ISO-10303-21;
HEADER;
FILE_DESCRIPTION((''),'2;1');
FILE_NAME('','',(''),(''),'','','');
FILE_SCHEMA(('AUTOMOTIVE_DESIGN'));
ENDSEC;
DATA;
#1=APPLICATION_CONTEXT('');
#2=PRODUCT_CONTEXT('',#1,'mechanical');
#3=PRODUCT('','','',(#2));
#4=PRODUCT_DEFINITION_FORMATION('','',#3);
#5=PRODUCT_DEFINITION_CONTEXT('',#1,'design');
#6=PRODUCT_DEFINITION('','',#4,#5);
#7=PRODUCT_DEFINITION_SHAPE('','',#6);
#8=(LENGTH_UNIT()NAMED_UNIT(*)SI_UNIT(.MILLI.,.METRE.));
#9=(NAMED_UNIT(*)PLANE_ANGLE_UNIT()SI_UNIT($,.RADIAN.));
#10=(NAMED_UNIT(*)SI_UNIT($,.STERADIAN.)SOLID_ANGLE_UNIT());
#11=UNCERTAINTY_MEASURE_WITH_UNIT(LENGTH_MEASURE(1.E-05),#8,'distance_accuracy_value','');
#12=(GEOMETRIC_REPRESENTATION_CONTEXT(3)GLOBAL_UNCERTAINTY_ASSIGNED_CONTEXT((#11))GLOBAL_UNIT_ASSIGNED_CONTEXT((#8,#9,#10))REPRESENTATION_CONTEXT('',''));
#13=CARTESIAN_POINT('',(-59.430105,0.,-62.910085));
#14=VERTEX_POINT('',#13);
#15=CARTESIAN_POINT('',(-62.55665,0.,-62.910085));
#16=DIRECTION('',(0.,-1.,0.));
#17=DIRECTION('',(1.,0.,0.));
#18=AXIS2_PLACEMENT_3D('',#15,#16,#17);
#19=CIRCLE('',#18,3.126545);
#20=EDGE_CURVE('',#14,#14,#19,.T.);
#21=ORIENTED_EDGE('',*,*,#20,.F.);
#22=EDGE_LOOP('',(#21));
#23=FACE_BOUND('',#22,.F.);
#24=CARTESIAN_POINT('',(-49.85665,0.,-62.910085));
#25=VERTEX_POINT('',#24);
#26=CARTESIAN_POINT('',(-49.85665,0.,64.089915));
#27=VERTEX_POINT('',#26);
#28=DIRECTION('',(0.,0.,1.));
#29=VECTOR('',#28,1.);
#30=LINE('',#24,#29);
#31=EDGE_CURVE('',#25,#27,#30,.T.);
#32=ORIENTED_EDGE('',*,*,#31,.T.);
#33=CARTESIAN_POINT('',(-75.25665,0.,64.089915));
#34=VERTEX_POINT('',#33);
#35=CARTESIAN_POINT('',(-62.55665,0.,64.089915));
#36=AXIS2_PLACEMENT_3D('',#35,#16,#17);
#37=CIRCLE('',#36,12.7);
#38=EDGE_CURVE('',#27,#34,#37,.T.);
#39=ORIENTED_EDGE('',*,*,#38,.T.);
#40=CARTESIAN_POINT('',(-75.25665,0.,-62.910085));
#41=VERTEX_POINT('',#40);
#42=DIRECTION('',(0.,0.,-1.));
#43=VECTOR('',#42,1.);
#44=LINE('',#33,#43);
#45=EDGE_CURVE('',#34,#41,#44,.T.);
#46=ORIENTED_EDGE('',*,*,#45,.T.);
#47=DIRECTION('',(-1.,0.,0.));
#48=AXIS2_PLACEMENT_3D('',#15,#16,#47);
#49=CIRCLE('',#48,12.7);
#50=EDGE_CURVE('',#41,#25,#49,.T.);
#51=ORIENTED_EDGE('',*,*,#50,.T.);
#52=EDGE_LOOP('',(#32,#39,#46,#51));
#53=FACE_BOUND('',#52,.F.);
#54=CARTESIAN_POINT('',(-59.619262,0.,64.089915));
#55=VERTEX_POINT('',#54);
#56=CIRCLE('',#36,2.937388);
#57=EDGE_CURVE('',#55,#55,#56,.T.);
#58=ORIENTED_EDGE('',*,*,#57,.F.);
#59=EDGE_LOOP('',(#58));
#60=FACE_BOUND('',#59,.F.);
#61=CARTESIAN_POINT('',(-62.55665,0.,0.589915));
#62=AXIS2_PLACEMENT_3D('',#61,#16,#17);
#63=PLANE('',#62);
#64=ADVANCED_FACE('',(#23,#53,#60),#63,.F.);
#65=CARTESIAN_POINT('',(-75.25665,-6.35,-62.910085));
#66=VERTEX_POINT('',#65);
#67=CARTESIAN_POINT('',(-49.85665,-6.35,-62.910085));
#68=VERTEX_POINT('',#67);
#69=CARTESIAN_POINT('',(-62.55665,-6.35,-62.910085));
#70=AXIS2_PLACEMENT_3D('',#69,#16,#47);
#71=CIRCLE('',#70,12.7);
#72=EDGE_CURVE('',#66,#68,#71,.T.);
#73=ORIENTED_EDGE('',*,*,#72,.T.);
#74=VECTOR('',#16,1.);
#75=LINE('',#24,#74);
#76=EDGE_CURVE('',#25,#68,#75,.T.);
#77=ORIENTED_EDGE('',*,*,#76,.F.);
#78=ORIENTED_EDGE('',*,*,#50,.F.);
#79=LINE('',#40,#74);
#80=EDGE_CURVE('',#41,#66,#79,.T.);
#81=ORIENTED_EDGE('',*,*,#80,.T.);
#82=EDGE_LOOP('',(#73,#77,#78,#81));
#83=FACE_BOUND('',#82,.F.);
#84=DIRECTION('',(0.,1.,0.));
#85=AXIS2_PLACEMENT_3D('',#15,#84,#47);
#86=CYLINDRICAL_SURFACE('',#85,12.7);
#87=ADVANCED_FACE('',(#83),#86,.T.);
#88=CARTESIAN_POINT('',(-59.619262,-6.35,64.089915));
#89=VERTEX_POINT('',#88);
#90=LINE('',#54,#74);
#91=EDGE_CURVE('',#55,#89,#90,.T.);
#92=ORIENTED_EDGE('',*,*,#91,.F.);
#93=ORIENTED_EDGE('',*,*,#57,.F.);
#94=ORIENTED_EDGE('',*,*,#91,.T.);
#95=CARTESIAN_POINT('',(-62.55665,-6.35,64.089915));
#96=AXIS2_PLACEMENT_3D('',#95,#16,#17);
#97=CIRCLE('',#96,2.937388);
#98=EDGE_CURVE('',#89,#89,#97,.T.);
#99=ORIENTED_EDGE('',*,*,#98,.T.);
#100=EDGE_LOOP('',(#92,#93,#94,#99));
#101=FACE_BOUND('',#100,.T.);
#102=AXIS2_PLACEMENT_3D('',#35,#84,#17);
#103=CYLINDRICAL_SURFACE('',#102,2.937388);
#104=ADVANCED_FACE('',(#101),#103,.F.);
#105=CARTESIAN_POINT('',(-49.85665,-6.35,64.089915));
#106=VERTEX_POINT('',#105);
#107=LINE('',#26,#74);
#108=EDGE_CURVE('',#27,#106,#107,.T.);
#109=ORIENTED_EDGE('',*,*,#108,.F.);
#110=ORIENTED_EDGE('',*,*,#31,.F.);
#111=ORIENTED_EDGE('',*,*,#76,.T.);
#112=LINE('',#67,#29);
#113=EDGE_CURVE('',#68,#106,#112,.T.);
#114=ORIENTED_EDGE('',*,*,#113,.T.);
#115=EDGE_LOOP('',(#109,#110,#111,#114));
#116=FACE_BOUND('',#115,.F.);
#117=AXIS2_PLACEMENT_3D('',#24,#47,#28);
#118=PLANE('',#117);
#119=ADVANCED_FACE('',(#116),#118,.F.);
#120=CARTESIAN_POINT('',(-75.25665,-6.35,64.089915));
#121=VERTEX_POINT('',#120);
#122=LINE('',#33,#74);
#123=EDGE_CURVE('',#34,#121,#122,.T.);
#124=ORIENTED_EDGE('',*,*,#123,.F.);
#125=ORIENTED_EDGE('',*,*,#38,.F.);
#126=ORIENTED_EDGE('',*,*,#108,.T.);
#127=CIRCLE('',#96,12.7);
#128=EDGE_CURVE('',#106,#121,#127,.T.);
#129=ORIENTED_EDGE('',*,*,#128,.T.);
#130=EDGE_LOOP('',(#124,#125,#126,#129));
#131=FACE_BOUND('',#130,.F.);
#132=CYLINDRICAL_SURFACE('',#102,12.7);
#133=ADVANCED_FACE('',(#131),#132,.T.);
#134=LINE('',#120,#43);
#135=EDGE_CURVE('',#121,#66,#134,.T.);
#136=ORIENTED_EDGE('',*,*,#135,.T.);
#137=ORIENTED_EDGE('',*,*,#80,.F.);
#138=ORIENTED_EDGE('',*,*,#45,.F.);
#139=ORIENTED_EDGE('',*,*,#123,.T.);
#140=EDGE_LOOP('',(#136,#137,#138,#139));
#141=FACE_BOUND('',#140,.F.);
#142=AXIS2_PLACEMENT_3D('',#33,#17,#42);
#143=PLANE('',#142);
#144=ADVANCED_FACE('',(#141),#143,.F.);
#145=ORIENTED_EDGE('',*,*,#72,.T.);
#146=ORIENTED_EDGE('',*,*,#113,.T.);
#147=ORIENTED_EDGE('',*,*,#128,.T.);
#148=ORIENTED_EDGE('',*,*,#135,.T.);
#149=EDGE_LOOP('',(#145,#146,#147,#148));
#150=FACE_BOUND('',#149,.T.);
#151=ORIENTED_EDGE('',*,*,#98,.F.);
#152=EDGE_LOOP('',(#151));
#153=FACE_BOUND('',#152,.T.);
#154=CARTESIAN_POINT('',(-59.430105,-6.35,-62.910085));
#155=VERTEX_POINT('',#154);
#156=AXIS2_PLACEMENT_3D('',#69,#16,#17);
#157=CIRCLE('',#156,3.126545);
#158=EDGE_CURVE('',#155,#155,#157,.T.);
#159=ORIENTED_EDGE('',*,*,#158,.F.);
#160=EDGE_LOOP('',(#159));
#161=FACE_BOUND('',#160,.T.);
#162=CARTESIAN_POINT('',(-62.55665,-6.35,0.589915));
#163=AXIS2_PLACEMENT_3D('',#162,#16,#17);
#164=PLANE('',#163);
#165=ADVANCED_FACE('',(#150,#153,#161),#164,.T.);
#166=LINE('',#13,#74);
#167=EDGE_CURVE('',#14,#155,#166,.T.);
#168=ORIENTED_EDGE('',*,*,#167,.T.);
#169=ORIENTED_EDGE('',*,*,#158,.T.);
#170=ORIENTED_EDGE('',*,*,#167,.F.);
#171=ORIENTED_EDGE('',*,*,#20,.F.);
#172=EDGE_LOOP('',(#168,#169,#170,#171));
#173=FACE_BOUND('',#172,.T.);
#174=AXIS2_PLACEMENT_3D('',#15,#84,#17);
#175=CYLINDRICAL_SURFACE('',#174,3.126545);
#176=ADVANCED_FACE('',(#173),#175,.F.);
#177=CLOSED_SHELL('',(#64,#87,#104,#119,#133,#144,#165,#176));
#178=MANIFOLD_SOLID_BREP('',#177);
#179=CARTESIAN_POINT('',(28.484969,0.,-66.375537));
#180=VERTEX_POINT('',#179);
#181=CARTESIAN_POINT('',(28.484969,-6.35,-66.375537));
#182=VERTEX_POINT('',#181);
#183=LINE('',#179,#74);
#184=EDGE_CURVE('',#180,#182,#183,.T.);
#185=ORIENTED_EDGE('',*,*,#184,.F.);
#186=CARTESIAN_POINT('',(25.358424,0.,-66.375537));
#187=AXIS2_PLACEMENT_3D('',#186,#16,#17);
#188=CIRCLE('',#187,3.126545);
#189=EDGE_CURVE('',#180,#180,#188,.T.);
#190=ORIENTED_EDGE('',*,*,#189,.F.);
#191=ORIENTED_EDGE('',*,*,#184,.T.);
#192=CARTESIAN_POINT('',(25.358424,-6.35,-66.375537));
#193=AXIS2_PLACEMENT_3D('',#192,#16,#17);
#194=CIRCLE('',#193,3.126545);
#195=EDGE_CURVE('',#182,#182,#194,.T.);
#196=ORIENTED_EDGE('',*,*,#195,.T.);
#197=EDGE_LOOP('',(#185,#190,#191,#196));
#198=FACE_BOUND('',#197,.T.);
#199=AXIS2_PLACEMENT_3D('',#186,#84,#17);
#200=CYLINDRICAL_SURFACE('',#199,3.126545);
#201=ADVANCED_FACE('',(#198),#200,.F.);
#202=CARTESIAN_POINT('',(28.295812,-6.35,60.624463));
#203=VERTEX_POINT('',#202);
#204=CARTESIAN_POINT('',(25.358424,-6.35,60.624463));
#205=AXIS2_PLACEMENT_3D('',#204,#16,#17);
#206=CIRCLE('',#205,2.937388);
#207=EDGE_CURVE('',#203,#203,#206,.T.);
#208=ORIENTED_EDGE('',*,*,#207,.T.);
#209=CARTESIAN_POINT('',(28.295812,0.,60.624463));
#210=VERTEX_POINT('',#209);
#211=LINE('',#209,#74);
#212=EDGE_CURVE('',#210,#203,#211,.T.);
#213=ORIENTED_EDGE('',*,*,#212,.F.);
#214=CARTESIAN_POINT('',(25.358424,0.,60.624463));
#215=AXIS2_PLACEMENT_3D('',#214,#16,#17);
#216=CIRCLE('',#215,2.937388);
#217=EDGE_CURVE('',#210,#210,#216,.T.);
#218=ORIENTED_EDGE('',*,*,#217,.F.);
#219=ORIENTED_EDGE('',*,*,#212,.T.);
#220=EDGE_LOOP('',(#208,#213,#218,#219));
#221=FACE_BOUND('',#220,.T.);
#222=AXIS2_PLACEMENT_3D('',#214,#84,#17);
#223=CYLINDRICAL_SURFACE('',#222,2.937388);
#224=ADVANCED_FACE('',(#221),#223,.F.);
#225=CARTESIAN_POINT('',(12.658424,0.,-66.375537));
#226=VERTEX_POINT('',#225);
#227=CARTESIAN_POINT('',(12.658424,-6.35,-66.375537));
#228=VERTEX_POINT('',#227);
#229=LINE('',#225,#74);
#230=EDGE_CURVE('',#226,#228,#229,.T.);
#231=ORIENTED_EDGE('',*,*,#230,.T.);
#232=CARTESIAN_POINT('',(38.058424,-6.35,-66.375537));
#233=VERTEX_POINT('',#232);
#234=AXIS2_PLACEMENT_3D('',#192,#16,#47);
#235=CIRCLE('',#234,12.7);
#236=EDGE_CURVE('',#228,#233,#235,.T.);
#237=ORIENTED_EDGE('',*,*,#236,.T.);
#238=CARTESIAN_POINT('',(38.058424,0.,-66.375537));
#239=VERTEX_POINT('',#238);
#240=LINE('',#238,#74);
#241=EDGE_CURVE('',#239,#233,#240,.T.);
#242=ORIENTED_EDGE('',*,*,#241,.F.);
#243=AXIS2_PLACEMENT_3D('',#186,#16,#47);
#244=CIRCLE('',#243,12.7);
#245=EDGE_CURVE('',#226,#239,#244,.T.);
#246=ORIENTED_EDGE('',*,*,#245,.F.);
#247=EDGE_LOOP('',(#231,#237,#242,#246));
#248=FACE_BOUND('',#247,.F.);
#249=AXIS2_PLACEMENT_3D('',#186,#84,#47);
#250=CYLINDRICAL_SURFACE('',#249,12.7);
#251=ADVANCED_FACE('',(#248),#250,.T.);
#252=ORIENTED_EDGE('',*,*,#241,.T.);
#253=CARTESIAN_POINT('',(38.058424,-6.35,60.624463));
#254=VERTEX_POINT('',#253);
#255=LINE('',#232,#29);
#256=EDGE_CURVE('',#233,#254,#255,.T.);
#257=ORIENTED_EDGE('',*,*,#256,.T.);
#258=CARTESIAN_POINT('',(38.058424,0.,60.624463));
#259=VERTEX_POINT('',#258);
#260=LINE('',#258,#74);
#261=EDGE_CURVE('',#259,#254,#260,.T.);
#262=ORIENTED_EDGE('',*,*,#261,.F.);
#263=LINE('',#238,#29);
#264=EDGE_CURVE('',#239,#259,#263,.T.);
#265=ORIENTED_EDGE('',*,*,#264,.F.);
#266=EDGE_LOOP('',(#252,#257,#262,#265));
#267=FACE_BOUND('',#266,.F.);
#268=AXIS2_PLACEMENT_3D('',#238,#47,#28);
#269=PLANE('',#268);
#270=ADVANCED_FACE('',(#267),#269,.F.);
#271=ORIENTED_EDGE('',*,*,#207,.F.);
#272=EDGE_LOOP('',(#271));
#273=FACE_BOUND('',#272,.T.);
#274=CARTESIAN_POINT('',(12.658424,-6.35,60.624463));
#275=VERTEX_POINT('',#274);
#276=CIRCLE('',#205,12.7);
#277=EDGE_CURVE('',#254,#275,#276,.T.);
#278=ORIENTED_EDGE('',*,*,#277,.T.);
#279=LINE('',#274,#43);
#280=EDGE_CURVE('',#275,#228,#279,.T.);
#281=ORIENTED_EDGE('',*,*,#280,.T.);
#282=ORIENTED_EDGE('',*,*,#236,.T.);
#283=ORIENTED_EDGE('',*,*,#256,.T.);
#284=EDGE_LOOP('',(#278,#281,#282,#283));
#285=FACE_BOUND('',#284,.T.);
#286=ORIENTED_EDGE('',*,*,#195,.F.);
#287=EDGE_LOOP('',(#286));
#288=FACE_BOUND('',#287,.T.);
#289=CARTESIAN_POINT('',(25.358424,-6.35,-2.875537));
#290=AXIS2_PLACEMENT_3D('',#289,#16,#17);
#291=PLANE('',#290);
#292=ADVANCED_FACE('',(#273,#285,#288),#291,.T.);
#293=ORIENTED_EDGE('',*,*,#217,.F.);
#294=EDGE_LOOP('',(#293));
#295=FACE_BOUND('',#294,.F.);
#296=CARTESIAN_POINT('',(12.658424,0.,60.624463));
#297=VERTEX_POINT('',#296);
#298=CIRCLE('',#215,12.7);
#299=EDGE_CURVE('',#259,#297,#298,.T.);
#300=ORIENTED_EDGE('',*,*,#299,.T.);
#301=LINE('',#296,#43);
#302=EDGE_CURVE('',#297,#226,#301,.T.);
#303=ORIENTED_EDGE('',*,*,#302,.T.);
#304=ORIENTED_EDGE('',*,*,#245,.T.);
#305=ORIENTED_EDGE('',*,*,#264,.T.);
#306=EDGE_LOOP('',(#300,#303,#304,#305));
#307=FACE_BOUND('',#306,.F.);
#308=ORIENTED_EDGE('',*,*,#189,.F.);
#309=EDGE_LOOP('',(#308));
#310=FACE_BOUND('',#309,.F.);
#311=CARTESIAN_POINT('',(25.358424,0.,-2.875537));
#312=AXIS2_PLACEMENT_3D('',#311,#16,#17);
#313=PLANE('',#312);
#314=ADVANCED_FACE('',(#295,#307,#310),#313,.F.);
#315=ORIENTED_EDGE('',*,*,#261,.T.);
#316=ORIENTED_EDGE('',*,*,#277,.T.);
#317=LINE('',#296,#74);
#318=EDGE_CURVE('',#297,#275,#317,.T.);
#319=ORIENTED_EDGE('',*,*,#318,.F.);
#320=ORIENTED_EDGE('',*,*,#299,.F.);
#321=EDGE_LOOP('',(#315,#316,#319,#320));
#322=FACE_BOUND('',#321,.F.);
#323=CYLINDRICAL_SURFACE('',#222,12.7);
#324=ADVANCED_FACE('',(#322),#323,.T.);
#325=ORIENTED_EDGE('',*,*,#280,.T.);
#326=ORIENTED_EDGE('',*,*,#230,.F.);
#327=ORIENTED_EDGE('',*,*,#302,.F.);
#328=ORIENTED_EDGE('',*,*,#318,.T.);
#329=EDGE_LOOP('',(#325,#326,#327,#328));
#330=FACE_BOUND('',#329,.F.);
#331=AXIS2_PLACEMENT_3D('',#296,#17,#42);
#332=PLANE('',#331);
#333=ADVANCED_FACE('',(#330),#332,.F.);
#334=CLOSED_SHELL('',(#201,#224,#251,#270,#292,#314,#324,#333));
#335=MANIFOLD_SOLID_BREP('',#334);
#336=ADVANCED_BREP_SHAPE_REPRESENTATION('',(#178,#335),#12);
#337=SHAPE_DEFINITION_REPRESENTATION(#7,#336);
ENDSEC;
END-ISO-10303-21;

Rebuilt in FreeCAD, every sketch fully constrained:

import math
import FreeCAD as App
import Part
import Sketcher

V = App.Vector
Q = App.Units.Quantity

doc = App.newDocument("Part")
params = doc.addObject("Spreadsheet::Sheet", "Params")
for row, (alias, value) in enumerate([
    ("sketch1_radius", "0.5 in"),
    ("sketch1_height", "5 in"),
    ("pad1_length", "0.25 in"),
], start=1):
    params.set(f"A{row}", alias)
    params.set(f"B{row}", "=" + value)
    params.setAlias(f"B{row}", alias)

body = doc.addObject("PartDesign::Body", "Body")
body.AllowCompound = True

# Sketch on XZ plane
sketch1 = body.newObject("Sketcher::SketchObject", "Sketch")
sketch1.AttachmentSupport = (doc.getObject("XZ_Plane"), [""])
sketch1.MapMode = "FlatFace"
sketch1.addGeometry([
    Part.ArcOfCircle(Part.Circle(V(25.4, 60.6, 0), V(0, 0, 1), 12.7), math.radians(0), math.radians(180)),  # 0
    Part.LineSegment(V(12.7, 60.6, 0), V(12.7, -66.4, 0)),  # 1
    Part.ArcOfCircle(Part.Circle(V(25.4, -66.4, 0), V(0, 0, 1), 12.7), math.radians(180), math.radians(360)),  # 2
    Part.LineSegment(V(38.1, -66.4, 0), V(38.1, 60.6, 0)),  # 3
    Part.Circle(V(25.4, -66.4, 0), V(0, 0, 1), 3.1),  # 4
    Part.Circle(V(25.4, 60.6, 0), V(0, 0, 1), 2.9),  # 5
    Part.ArcOfCircle(Part.Circle(V(-62.6, 64.1, 0), V(0, 0, 1), 12.7), math.radians(0), math.radians(180)),  # 6
    Part.LineSegment(V(-75.3, 64.1, 0), V(-75.3, -62.9, 0)),  # 7
    Part.ArcOfCircle(Part.Circle(V(-62.6, -62.9, 0), V(0, 0, 1), 12.7), math.radians(180), math.radians(360)),  # 8
    Part.LineSegment(V(-49.9, -62.9, 0), V(-49.9, 64.1, 0)),  # 9
    Part.Circle(V(-62.6, -62.9, 0), V(0, 0, 1), 3.1),  # 10
    Part.Circle(V(-62.6, 64.1, 0), V(0, 0, 1), 2.9),  # 11
], False)
sketch1.addConstraint([
    Sketcher.Constraint("Tangent", 0, 2, 1, 1),
    Sketcher.Constraint("Tangent", 1, 2, 2, 1),
    Sketcher.Constraint("Tangent", 2, 2, 3, 1),
    Sketcher.Constraint("Tangent", 3, 2, 0, 1),
    Sketcher.Constraint("Tangent", 6, 2, 7, 1),
    Sketcher.Constraint("Tangent", 7, 2, 8, 1),
    Sketcher.Constraint("Tangent", 8, 2, 9, 1),
    Sketcher.Constraint("Tangent", 9, 2, 6, 1),
    Sketcher.Constraint("Vertical", 1),
    Sketcher.Constraint("Vertical", 3),
    Sketcher.Constraint("Vertical", 7),
    Sketcher.Constraint("Vertical", 9),
    Sketcher.Constraint("Coincident", 4, 3, 2, 3),
    Sketcher.Constraint("Coincident", 5, 3, 0, 3),
    Sketcher.Constraint("Coincident", 10, 3, 8, 3),
    Sketcher.Constraint("Coincident", 11, 3, 6, 3),
    Sketcher.Constraint("Equal", 2, 6),
    Sketcher.Constraint("Equal", 4, 10),
    Sketcher.Constraint("Equal", 5, 11),
    Sketcher.Constraint("Equal", 3, 7),
    Sketcher.Constraint("Radius", 0, Q("0.5 in")),
    Sketcher.Constraint("DistanceY", 1, 2, 1, 1, Q("5 in")),
    Sketcher.Constraint("Diameter", 4, Q("6.25309 mm")),
    Sketcher.Constraint("Diameter", 5, Q("5.874776 mm")),
    Sketcher.Constraint("DistanceX", 6, 3, -1, 1, Q("62.55665 mm")),
    Sketcher.Constraint("DistanceY", 2, 3, 6, 3, Q("130.465452 mm")),
    Sketcher.Constraint("DistanceX", -1, 1, 0, 3, Q("25.358424 mm")),
    Sketcher.Constraint("DistanceY", -1, 1, 0, 3, Q("60.624463 mm")),
])
sketch1.setExpression("Constraints[20]", "Params.sketch1_radius")
sketch1.setExpression("Constraints[21]", "Params.sketch1_height")
pad1 = body.newObject("PartDesign::Pad", "Pad")
pad1.Profile = sketch1
pad1.setExpression("Length", "Params.pad1_length")

doc.recompute()
